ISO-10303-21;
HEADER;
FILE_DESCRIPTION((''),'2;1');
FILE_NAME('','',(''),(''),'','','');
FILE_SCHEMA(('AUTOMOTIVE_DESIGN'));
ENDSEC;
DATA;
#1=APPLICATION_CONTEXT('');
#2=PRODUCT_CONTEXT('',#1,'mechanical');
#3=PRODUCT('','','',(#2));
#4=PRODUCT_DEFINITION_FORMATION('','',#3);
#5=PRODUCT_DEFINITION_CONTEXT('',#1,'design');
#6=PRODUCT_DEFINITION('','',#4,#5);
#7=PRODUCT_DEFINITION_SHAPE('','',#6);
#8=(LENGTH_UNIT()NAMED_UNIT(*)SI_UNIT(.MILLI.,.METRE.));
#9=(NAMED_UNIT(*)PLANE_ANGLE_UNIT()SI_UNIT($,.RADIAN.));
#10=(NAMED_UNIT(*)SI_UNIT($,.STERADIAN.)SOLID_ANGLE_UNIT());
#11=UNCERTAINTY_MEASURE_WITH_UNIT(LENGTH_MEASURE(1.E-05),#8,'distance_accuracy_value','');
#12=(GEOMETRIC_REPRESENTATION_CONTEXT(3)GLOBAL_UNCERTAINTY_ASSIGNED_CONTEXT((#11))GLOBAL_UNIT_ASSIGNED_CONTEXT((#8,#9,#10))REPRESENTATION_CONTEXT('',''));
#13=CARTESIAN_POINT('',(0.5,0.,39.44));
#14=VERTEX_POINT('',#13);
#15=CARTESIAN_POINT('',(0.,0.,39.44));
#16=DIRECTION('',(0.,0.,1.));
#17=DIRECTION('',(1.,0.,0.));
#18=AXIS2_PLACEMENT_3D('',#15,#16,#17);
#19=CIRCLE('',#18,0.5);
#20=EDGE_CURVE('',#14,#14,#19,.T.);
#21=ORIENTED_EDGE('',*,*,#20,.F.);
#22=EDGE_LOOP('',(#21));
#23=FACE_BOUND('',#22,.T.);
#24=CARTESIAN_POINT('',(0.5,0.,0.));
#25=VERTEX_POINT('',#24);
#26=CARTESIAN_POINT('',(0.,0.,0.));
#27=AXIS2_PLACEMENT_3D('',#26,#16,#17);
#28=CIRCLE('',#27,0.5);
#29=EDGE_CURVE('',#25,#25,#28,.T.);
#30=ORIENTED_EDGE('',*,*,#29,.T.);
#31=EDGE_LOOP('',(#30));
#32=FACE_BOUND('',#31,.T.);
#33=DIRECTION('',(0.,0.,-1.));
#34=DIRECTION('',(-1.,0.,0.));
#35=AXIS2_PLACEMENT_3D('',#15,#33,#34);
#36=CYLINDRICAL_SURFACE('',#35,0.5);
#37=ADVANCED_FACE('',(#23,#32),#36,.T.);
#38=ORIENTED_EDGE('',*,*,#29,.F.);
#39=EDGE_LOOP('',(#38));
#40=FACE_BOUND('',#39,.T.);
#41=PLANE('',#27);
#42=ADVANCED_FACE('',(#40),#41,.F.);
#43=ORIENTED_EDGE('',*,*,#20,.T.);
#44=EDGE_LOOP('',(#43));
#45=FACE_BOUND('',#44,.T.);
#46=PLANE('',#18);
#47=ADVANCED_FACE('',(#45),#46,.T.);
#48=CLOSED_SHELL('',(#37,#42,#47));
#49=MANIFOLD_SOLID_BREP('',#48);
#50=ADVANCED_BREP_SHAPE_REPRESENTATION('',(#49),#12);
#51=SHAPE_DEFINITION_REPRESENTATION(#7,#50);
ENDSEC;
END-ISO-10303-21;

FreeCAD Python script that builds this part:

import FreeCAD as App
import Part
import Sketcher
from FreeCAD import Vector

doc = App.newDocument("Part")
body = doc.addObject("PartDesign::Body", "Body")

# Sketch on XY plane
sketch1 = body.newObject("Sketcher::SketchObject", "Sketch")
sketch1.AttachmentSupport = (doc.getObject("XY_Plane"), [""])
sketch1.MapMode = "FlatFace"
sketch1.addGeometry(Part.Circle(Vector(0, 0, 0), Vector(0, 0, 1), 0.5), False)
sketch1.addConstraint([
    Sketcher.Constraint("Coincident", 0, 3, -1, 1),
    Sketcher.Constraint("Diameter", 0, 1.0),
])
pad1 = body.newObject("PartDesign::Pad", "Pad")
pad1.Profile = sketch1
pad1.Length = 39.44

doc.recompute()
